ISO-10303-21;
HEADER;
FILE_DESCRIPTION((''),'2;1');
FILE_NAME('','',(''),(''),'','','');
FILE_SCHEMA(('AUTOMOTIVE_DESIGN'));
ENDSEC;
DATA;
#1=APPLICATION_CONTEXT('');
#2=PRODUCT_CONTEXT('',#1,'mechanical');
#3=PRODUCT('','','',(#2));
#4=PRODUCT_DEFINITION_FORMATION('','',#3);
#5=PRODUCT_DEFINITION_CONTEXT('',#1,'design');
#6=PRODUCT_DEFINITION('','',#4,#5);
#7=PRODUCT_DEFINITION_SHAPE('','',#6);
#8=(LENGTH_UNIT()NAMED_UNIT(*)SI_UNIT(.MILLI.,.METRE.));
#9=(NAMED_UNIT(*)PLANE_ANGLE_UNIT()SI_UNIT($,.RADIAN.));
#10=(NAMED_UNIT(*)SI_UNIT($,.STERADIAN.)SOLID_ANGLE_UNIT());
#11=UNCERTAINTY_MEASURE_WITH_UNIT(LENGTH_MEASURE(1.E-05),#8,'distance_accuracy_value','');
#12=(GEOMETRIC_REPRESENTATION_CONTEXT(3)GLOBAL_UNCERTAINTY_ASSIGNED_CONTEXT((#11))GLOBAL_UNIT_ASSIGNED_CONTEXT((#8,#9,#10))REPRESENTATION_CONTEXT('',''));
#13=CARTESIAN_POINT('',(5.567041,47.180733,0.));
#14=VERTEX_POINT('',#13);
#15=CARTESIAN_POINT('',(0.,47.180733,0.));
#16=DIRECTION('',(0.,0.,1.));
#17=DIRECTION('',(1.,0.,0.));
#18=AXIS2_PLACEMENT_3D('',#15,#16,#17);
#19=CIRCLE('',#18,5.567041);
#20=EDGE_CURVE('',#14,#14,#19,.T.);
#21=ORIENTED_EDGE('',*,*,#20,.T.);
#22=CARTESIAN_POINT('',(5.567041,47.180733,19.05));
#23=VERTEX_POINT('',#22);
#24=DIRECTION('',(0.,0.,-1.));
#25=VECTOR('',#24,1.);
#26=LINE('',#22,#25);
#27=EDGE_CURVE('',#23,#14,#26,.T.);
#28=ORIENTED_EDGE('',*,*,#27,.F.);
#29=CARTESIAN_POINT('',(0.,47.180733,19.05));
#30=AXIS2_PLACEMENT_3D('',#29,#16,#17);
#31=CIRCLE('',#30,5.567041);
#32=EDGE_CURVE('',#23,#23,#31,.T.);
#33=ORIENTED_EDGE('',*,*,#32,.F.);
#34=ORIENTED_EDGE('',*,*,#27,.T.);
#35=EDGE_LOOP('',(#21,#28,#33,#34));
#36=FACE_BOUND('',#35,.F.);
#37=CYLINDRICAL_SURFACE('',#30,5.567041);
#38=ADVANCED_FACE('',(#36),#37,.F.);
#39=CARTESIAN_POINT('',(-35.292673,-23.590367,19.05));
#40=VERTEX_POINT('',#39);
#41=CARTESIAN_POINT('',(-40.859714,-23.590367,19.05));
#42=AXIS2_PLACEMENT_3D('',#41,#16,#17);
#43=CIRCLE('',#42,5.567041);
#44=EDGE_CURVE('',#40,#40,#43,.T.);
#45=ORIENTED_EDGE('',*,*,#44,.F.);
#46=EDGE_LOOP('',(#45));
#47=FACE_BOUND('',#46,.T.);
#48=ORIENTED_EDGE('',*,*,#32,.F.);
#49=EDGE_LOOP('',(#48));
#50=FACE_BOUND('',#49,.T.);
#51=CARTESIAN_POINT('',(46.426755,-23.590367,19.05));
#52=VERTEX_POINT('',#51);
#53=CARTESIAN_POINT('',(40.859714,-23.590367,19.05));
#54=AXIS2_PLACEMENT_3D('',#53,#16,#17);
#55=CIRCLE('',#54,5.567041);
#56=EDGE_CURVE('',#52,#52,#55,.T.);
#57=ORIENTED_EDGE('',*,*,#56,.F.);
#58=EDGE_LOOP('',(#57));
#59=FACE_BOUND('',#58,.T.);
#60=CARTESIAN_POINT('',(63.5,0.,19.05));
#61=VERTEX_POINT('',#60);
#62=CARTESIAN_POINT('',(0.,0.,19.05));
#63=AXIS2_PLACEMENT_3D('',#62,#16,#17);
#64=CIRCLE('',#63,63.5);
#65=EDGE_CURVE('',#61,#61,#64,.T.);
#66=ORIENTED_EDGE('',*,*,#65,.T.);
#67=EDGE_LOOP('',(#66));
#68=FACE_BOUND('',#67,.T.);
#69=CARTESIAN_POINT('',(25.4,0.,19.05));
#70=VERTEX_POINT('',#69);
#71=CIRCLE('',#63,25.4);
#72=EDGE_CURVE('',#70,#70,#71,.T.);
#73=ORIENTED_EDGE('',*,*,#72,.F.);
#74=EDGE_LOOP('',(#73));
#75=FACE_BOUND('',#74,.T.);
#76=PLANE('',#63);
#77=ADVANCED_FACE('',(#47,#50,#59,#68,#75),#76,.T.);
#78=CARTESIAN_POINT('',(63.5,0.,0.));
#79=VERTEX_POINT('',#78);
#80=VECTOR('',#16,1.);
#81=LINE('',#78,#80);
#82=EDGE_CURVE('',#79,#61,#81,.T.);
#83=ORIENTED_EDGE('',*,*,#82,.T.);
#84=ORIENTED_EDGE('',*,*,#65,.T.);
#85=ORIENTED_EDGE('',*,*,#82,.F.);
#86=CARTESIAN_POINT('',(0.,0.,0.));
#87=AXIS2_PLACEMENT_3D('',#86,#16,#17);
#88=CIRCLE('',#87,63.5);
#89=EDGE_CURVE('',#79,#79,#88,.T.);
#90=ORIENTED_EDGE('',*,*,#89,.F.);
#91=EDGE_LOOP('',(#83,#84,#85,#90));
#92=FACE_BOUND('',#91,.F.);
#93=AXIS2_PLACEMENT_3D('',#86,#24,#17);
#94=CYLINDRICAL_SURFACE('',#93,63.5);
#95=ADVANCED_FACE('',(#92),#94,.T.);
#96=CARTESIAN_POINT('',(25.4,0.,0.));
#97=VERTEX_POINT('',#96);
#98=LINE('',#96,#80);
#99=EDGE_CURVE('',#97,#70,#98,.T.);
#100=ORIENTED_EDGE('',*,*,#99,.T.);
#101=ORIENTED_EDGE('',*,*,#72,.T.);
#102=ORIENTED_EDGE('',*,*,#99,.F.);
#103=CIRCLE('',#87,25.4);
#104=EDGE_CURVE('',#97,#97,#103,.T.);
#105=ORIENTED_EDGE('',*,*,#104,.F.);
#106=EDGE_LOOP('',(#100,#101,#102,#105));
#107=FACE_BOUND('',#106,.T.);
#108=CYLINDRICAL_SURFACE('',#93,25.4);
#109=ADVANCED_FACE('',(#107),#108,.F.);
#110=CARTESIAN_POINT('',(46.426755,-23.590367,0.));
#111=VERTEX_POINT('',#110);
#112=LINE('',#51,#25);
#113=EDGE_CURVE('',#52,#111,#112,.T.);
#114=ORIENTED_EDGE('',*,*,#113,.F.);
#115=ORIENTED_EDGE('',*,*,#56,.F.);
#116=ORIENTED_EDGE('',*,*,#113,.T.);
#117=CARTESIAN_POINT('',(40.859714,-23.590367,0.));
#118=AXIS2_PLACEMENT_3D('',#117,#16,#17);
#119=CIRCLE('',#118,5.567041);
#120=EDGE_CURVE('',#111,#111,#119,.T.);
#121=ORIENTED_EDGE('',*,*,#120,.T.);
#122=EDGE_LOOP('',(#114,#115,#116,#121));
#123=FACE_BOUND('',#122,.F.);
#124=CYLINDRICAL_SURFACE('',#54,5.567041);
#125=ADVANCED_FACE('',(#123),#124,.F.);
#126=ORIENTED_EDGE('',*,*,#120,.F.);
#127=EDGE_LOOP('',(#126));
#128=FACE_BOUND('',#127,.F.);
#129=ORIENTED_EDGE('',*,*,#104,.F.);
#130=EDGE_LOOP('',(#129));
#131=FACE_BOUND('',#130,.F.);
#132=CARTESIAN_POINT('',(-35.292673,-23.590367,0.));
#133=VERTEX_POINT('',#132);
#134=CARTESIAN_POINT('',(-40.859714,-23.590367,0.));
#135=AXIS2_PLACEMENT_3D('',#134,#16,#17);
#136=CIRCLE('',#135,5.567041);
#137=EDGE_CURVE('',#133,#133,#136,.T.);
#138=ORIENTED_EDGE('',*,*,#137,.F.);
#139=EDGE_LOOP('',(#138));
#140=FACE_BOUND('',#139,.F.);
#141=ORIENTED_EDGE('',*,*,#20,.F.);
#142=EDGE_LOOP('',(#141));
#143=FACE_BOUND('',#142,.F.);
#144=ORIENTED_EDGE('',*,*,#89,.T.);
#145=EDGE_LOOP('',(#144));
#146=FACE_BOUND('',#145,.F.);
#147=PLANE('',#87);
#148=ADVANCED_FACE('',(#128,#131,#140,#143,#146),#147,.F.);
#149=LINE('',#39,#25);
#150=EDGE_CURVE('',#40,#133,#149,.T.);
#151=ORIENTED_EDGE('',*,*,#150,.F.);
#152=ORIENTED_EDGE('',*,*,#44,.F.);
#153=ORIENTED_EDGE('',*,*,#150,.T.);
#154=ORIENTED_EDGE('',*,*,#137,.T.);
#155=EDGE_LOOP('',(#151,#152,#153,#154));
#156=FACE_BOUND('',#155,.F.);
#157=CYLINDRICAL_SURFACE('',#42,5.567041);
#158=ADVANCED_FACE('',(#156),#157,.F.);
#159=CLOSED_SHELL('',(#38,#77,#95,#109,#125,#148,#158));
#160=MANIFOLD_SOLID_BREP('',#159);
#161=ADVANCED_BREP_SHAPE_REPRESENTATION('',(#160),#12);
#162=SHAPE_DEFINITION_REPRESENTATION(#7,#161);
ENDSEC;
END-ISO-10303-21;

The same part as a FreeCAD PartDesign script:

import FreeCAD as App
import Part
import Sketcher

V = App.Vector
Q = App.Units.Quantity

doc = App.newDocument("Part")
body = doc.addObject("PartDesign::Body", "Body")

# Sketch on XY plane
sketch1 = doc.addObject("Sketcher::SketchObject", "Sketch")
body.addObject(sketch1)
sketch1.AttachmentSupport = (doc.XY_Plane, [""])
sketch1.MapMode = "FlatFace"
sketch1.addGeometry(Part.Circle(V(0, 0, 0), V(0, 0, 1), 64), False)
sketch1.addGeometry(Part.Circle(V(0, 0, 0), V(0, 0, 1), 25), False)
sketch1.addConstraint(Sketcher.Constraint("Coincident", 0, 3, -1, 1))
sketch1.addConstraint(Sketcher.Constraint("Coincident", 1, 3, -1, 1))
sketch1.addConstraint(Sketcher.Constraint("Diameter", 0, Q("5 in")))
sketch1.addConstraint(Sketcher.Constraint("Diameter", 1, Q("2 in")))
pad1 = doc.addObject("PartDesign::Pad", "Pad")
body.addObject(pad1)
pad1.Profile = sketch1
pad1.Length = Q("0.75 in")

# Sketch on XY plane
sketch2 = doc.addObject("Sketcher::SketchObject", "Sketch001")
body.addObject(sketch2)
sketch2.AttachmentSupport = (doc.XY_Plane, [""])
sketch2.MapMode = "FlatFace"
sketch2.AttachmentOffset = App.Placement(V(0, 0, 0.75 * 25.4), App.Rotation())
sketch2.addGeometry(Part.Circle(V(0, 47, 0), V(0, 0, 1), 6), False)
sketch2.addGeometry(Part.Circle(V(-41, -24, 0), V(0, 0, 1), 6), False)
sketch2.addGeometry(Part.Circle(V(41, -24, 0), V(0, 0, 1), 6), False)
sketch2.addConstraint(Sketcher.Constraint("Equal", 0, 1))
sketch2.addConstraint(Sketcher.Constraint("Equal", 1, 2))
sketch2.addConstraint(Sketcher.Constraint("Symmetric", 1, 3, 2, 3, -2))
sketch2.addConstraint(Sketcher.Constraint("PointOnObject", 0, 3, -2))
sketch2.addConstraint(Sketcher.Constraint("Diameter", 0, 11.134082))
sketch2.addConstraint(Sketcher.Constraint("DistanceY", 1, 3, 0, 3, 70.7711))
sketch2.addConstraint(Sketcher.Constraint("DistanceY", -1, 1, 0, 3, 47.180733))
sketch2.addConstraint(Sketcher.Constraint("DistanceX", 1, 3, -1, 1, 40.859714))
pocket1 = doc.addObject("PartDesign::Pocket", "Pocket")
body.addObject(pocket1)
pocket1.Profile = sketch2
pocket1.Length = Q("1 in")

doc.recompute()
